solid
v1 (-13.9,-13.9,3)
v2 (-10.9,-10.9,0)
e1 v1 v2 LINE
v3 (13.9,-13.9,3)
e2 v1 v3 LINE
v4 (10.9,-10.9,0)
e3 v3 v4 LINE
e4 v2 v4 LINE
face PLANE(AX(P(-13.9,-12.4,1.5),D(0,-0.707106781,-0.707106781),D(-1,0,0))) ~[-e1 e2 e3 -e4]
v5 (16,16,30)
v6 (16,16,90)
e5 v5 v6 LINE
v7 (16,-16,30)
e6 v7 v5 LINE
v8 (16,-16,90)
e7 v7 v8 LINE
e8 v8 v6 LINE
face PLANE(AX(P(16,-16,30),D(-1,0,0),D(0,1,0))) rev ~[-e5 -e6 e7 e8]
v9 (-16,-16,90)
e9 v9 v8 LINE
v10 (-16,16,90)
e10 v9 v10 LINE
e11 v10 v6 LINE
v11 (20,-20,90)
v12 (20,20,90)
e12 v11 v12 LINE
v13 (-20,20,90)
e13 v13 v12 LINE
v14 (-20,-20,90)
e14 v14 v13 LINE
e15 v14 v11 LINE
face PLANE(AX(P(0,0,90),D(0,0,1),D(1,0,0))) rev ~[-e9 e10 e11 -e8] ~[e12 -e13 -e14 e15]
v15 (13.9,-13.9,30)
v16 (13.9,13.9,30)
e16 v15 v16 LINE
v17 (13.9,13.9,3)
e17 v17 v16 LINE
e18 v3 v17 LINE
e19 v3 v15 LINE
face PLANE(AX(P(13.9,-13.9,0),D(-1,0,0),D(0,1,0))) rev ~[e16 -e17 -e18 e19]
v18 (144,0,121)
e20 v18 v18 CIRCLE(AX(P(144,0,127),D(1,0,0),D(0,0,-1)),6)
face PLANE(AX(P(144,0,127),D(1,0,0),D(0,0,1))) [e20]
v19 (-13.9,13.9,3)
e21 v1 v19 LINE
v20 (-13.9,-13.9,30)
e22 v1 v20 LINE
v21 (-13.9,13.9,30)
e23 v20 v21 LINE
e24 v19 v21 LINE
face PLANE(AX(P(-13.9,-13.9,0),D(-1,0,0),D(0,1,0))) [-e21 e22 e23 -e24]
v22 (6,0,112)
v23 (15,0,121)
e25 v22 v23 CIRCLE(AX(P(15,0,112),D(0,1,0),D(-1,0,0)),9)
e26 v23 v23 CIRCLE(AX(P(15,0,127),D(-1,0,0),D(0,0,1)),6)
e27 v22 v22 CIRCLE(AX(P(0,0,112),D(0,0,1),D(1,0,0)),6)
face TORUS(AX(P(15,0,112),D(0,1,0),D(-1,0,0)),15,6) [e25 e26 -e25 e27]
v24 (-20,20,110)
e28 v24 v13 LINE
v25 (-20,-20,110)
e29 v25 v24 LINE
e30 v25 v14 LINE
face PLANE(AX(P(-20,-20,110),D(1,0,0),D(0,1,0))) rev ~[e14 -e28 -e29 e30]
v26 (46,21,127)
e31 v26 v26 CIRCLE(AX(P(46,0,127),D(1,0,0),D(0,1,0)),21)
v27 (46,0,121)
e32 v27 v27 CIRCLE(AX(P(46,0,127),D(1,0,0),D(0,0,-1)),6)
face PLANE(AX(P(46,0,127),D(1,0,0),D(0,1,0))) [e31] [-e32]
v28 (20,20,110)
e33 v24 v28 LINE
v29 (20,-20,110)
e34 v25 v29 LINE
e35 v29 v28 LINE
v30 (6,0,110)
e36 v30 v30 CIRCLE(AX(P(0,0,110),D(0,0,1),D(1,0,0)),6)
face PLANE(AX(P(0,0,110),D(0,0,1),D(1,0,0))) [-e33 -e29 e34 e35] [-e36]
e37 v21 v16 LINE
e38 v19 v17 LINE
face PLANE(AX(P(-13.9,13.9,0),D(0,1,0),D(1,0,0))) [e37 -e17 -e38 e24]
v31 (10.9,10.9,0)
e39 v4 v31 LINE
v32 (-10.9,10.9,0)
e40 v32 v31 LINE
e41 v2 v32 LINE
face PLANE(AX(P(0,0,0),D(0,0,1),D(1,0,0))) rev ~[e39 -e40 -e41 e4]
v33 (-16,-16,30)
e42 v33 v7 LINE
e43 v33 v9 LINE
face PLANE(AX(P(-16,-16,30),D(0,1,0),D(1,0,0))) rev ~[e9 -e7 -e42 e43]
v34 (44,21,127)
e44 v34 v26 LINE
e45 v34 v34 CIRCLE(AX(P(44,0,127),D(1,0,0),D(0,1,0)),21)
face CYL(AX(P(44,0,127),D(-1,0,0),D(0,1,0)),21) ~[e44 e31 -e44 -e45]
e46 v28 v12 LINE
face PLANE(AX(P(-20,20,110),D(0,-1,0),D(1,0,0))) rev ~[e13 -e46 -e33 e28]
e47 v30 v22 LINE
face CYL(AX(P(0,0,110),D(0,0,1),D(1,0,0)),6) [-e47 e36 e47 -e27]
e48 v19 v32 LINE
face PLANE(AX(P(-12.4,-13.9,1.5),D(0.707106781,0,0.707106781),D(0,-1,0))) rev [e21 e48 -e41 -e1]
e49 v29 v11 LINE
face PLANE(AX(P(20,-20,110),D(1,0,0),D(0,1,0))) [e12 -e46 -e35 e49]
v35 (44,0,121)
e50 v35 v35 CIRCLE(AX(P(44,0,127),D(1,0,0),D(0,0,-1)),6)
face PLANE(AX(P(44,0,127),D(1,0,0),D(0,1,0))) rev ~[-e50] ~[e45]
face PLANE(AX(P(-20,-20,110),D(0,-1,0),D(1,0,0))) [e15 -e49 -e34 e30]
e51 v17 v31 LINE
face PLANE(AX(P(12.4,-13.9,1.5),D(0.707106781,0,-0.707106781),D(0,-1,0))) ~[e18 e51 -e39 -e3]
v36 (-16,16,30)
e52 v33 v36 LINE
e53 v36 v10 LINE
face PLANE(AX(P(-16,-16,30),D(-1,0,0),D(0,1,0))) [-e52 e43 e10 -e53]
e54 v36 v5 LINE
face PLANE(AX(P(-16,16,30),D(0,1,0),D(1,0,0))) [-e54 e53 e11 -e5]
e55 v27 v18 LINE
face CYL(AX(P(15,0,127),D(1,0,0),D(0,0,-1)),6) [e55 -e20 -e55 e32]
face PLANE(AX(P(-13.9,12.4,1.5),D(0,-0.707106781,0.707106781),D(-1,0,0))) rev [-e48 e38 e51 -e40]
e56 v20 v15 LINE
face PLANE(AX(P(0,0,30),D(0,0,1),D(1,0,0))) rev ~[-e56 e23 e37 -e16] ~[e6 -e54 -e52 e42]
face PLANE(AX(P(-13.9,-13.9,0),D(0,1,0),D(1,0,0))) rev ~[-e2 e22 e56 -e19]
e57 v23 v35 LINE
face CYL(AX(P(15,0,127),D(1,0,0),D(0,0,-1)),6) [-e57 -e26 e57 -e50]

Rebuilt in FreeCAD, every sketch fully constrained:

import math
import FreeCAD as App
import Part
import Sketcher

V = App.Vector


def edges_at(feature, points):
    """Names of the edges that pass closest to the given points."""
    edges = feature.Shape.Edges
    near = lambda p: min(range(len(edges)), key=lambda i: edges[i].distToShape(Part.Vertex(*p))[0])
    return sorted({f"Edge{near(p) + 1}" for p in points})


def add_polygon(sketch, points):
    """Adds a closed chain of lines whose ends are joined by coincident constraints."""
    first, n = sketch.GeometryCount, len(points)
    for a, b in zip(points, points[1:] + points[:1]):
        sketch.addGeometry(Part.LineSegment(App.Vector(*a, 0), App.Vector(*b, 0)), False)
    for i in range(n):
        sketch.addConstraint(Sketcher.Constraint("Coincident", first + i, 2, first + (i + 1) % n, 1))

doc = App.newDocument("Part")
body = doc.addObject("PartDesign::Body", "Body")

# Sketch on XY plane
sketch1 = doc.addObject("Sketcher::SketchObject", "Sketch")
body.addObject(sketch1)
sketch1.AttachmentSupport = (doc.XY_Plane, [""])
sketch1.MapMode = "FlatFace"
add_polygon(sketch1, [(-14, 14), (-14, -14), (14, -14), (14, 14)])  # lines 0-3
sketch1.addConstraint(Sketcher.Constraint("Vertical", 0))
sketch1.addConstraint(Sketcher.Constraint("Horizontal", 1))
sketch1.addConstraint(Sketcher.Constraint("Vertical", 2))
sketch1.addConstraint(Sketcher.Constraint("Horizontal", 3))
sketch1.addConstraint(Sketcher.Constraint("Symmetric", 0, 2, 2, 2, -1, 1))
sketch1.addConstraint(Sketcher.Constraint("Equal", 3, 0))
sketch1.addConstraint(Sketcher.Constraint("DistanceX", 1, 1, 1, 2, 27.8))
pad1 = doc.addObject("PartDesign::Pad", "Pad")
body.addObject(pad1)
pad1.Profile = sketch1
pad1.Length = 30

# Sketch on XY plane
sketch2 = doc.addObject("Sketcher::SketchObject", "Sketch001")
body.addObject(sketch2)
sketch2.AttachmentSupport = (doc.XY_Plane, [""])
sketch2.MapMode = "FlatFace"
sketch2.AttachmentOffset = App.Placement(V(0, 0, 30), App.Rotation())
add_polygon(sketch2, [(-16, 16), (-16, -16), (16, -16), (16, 16)])  # lines 0-3
sketch2.addConstraint(Sketcher.Constraint("Vertical", 0))
sketch2.addConstraint(Sketcher.Constraint("Horizontal", 1))
sketch2.addConstraint(Sketcher.Constraint("Vertical", 2))
sketch2.addConstraint(Sketcher.Constraint("Horizontal", 3))
sketch2.addConstraint(Sketcher.Constraint("Symmetric", 0, 2, 2, 2, -1, 1))
sketch2.addConstraint(Sketcher.Constraint("Equal", 3, 0))
sketch2.addConstraint(Sketcher.Constraint("DistanceX", 1, 1, 1, 2, 32.0))
pad2 = doc.addObject("PartDesign::Pad", "Pad001")
body.addObject(pad2)
pad2.Profile = sketch2
pad2.Length = 80

# Sketch on XY plane
sketch3 = doc.addObject("Sketcher::SketchObject", "Sketch002")
body.addObject(sketch3)
sketch3.AttachmentSupport = (doc.XY_Plane, [""])
sketch3.MapMode = "FlatFace"
sketch3.AttachmentOffset = App.Placement(V(0, 0, 110), App.Rotation())
add_polygon(sketch3, [(-20, 20), (-20, -20), (20, -20), (20, 20)])  # lines 0-3
sketch3.addConstraint(Sketcher.Constraint("Vertical", 0))
sketch3.addConstraint(Sketcher.Constraint("Horizontal", 1))
sketch3.addConstraint(Sketcher.Constraint("Vertical", 2))
sketch3.addConstraint(Sketcher.Constraint("Horizontal", 3))
sketch3.addConstraint(Sketcher.Constraint("Symmetric", 0, 2, 2, 2, -1, 1))
sketch3.addConstraint(Sketcher.Constraint("Equal", 3, 0))
sketch3.addConstraint(Sketcher.Constraint("DistanceX", 1, 1, 1, 2, 40.0))
pad3 = doc.addObject("PartDesign::Pad", "Pad002")
body.addObject(pad3)
pad3.Profile = sketch3
pad3.Length = 20
pad3.Reversed = True

# Sketch on XY plane
sketch4 = doc.addObject("Sketcher::SketchObject", "Sketch003")
body.addObject(sketch4)
sketch4.AttachmentSupport = (doc.XY_Plane, [""])
sketch4.MapMode = "FlatFace"
sketch4.AttachmentOffset = App.Placement(V(0, 0, 110), App.Rotation())
sketch4.addGeometry(Part.Circle(V(0, 0, 0), V(0, 0, 1), 6), False)
sketch4.addConstraint(Sketcher.Constraint("Coincident", 0, 3, -1, 1))
sketch4.addConstraint(Sketcher.Constraint("Diameter", 0, 12.0))

# Sketch on XZ plane
sketch5 = doc.addObject("Sketcher::SketchObject", "Sketch004")
body.addObject(sketch5)
sketch5.AttachmentSupport = (doc.XZ_Plane, [""])
sketch5.MapMode = "FlatFace"
sketch5.addGeometry(Part.LineSegment(V(0, 110, 0), V(0, 112, 0)), False)
sketch5.addGeometry(Part.ArcOfCircle(Part.Circle(V(15, 112, 0), V(0, 0, 1), 15), math.radians(90), math.radians(180)), False)
sketch5.addGeometry(Part.LineSegment(V(15, 127, 0), V(144, 127, 0)), False)
sketch5.addConstraint(Sketcher.Constraint("Tangent", 0, 2, 1, 2))
sketch5.addConstraint(Sketcher.Constraint("Tangent", 1, 1, 2, 1))
sketch5.addConstraint(Sketcher.Constraint("Vertical", 0))
sketch5.addConstraint(Sketcher.Constraint("Horizontal", 2))
sketch5.addConstraint(Sketcher.Constraint("PointOnObject", 0, 1, -2))
sketch5.addConstraint(Sketcher.Constraint("Radius", 1, 15.0))
sketch5.addConstraint(Sketcher.Constraint("DistanceX", 2, 1, 2, 2, 129.0))
sketch5.addConstraint(Sketcher.Constraint("DistanceY", 0, 1, 0, 2, 2.0))
sketch5.addConstraint(Sketcher.Constraint("DistanceY", -1, 1, 1, 3, 112.0))
doc.recompute()

additivepipe = doc.addObject("PartDesign::AdditivePipe", "AdditivePipe")
body.addObject(additivepipe)
additivepipe.Profile = sketch4
additivepipe.Spine = (sketch5, ["Edge1", "Edge2", "Edge3"])

# Sketch on YZ plane
sketch6 = doc.addObject("Sketcher::SketchObject", "Sketch005")
body.addObject(sketch6)
sketch6.AttachmentSupport = (doc.YZ_Plane, [""])
sketch6.MapMode = "FlatFace"
sketch6.AttachmentOffset = App.Placement(V(0, 0, 44), App.Rotation())
sketch6.addGeometry(Part.Circle(V(0, 127, 0), V(0, 0, 1), 21), False)
sketch6.addConstraint(Sketcher.Constraint("PointOnObject", 0, 3, -2))
sketch6.addConstraint(Sketcher.Constraint("Diameter", 0, 42.0))
sketch6.addConstraint(Sketcher.Constraint("DistanceY", -1, 1, 0, 3, 127.0))
pad4 = doc.addObject("PartDesign::Pad", "Pad003")
body.addObject(pad4)
pad4.Profile = sketch6
pad4.Length = 2
doc.recompute()

chamfer = doc.addObject("PartDesign::Chamfer", "Chamfer")
body.addObject(chamfer)
chamfer.Base = (pad4, edges_at(pad4, [
    (0, -13.9, 0),
    (13.9, 0, 0),
    (0, 13.9, 0),
    (-13.9, 0, 0),
]))
chamfer.Size = 3

doc.recompute()
